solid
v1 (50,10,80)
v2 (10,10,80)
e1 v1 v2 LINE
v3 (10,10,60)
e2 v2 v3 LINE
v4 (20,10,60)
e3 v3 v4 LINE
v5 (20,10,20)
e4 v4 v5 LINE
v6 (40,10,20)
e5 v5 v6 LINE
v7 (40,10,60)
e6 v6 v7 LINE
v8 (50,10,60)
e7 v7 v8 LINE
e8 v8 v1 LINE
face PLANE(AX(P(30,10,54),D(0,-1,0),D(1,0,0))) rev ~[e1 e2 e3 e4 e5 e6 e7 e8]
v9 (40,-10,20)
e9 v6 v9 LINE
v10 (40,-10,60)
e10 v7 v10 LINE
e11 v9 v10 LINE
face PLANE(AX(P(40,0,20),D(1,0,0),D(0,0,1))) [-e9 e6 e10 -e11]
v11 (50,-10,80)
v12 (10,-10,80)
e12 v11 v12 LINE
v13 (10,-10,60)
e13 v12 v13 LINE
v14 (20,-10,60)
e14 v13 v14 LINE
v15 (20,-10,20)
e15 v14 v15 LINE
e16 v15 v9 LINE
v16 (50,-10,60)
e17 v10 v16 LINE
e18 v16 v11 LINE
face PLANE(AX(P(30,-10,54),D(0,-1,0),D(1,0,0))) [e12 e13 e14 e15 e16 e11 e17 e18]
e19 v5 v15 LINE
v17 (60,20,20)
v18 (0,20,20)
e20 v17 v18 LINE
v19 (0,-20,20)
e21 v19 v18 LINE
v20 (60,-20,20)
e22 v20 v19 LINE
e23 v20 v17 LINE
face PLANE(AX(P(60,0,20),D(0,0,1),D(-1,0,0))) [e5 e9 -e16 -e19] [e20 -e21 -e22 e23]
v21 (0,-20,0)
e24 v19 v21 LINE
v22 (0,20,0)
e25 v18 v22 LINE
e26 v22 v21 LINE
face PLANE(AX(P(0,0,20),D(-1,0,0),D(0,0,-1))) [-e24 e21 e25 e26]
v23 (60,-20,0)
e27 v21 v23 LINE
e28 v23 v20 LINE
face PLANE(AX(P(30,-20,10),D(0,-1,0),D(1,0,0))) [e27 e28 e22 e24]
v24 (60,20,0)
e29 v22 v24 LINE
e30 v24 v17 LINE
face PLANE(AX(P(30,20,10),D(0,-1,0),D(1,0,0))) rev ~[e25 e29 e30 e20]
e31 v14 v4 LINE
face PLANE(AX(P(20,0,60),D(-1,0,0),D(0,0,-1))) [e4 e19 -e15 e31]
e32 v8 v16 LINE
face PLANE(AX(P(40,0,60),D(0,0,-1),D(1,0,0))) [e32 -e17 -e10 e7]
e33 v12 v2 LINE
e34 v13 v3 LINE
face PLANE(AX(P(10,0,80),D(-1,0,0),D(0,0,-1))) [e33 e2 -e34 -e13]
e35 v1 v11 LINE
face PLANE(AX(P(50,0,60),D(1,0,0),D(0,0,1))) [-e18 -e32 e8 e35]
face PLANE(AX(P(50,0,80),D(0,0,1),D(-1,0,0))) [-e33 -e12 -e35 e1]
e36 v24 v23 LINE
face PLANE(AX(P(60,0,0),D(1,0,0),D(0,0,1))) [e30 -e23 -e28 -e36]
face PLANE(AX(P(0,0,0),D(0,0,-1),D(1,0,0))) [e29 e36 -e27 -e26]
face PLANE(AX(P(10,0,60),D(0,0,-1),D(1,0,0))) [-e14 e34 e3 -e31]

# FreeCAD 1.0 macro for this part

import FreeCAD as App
import Part
import Sketcher
Q = App.Units.Quantity

doc = App.newDocument("Part")
body = doc.addObject("PartDesign::Body", "Body")

# Sketch on XZ plane
sketch1 = body.newObject("Sketcher::SketchObject", "Sketch")
sketch1.AttachmentSupport = (doc.getObject("XZ_Plane"), [""])
sketch1.MapMode = "FlatFace"
sketch1.addGeometry([
    Part.LineSegment(App.Vector(0, 20, 0), App.Vector(0, 0, 0)),
    Part.LineSegment(App.Vector(0, 0, 0), App.Vector(60, 0, 0)),
    Part.LineSegment(App.Vector(60, 0, 0), App.Vector(60, 20, 0)),
    Part.LineSegment(App.Vector(60, 20, 0), App.Vector(0, 20, 0)),
], False)
sketch1.addConstraint([
    Sketcher.Constraint("Coincident", 0, 2, 1, 1),
    Sketcher.Constraint("Coincident", 1, 2, 2, 1),
    Sketcher.Constraint("Coincident", 2, 2, 3, 1),
    Sketcher.Constraint("Coincident", 3, 2, 0, 1),
    Sketcher.Constraint("Vertical", 0),
    Sketcher.Constraint("Horizontal", 1),
    Sketcher.Constraint("Vertical", 2),
    Sketcher.Constraint("Horizontal", 3),
    Sketcher.Constraint("Coincident", 0, 2, -1, 1),
    Sketcher.Constraint("DistanceX", 1, 1, 1, 2, Q("60 mm")),
    Sketcher.Constraint("DistanceY", 0, 2, 0, 1, Q("20 mm")),
])
pad1 = body.newObject("PartDesign::Pad", "Pad")
pad1.Profile = sketch1
pad1.Length = 40
pad1.Midplane = True

# Sketch on XZ plane
sketch2 = body.newObject("Sketcher::SketchObject", "Sketch001")
sketch2.AttachmentSupport = (doc.getObject("XZ_Plane"), [""])
sketch2.MapMode = "FlatFace"
sketch2.addGeometry([
    Part.LineSegment(App.Vector(20, 60, 0), App.Vector(20, 20, 0)),  # 0
    Part.LineSegment(App.Vector(20, 20, 0), App.Vector(40, 20, 0)),  # 1
    Part.LineSegment(App.Vector(40, 20, 0), App.Vector(40, 60, 0)),  # 2
    Part.LineSegment(App.Vector(40, 60, 0), App.Vector(50, 60, 0)),  # 3
    Part.LineSegment(App.Vector(50, 60, 0), App.Vector(50, 80, 0)),  # 4
    Part.LineSegment(App.Vector(50, 80, 0), App.Vector(10, 80, 0)),  # 5
    Part.LineSegment(App.Vector(10, 80, 0), App.Vector(10, 60, 0)),  # 6
    Part.LineSegment(App.Vector(10, 60, 0), App.Vector(20, 60, 0)),  # 7
], False)
sketch2.addConstraint([
    Sketcher.Constraint("Coincident", 0, 2, 1, 1),
    Sketcher.Constraint("Coincident", 1, 2, 2, 1),
    Sketcher.Constraint("Coincident", 2, 2, 3, 1),
    Sketcher.Constraint("Coincident", 3, 2, 4, 1),
    Sketcher.Constraint("Coincident", 4, 2, 5, 1),
    Sketcher.Constraint("Coincident", 5, 2, 6, 1),
    Sketcher.Constraint("Coincident", 6, 2, 7, 1),
    Sketcher.Constraint("Coincident", 7, 2, 0, 1),
    Sketcher.Constraint("Vertical", 0),
    Sketcher.Constraint("Horizontal", 1),
    Sketcher.Constraint("Vertical", 2),
    Sketcher.Constraint("Horizontal", 3),
    Sketcher.Constraint("Vertical", 4),
    Sketcher.Constraint("Horizontal", 5),
    Sketcher.Constraint("Vertical", 6),
    Sketcher.Constraint("Horizontal", 7),
    Sketcher.Constraint("Horizontal", 3, 2, 6, 2),
    Sketcher.Constraint("Equal", 3, 7),
    Sketcher.Constraint("Equal", 5, 0),
    Sketcher.Constraint("Equal", 1, 4),
    Sketcher.Constraint("DistanceX", 1, 1, 1, 2, Q("20 mm")),
    Sketcher.Constraint("DistanceX", 3, 1, 3, 2, Q("10 mm")),
    Sketcher.Constraint("DistanceX", -1, 1, 0, 2, Q("20 mm")),
    Sketcher.Constraint("DistanceY", -1, 1, 0, 2, Q("20 mm")),
])
pad2 = body.newObject("PartDesign::Pad", "Pad001")
pad2.Profile = sketch2
pad2.Length = 20
pad2.Midplane = True

doc.recompute()
